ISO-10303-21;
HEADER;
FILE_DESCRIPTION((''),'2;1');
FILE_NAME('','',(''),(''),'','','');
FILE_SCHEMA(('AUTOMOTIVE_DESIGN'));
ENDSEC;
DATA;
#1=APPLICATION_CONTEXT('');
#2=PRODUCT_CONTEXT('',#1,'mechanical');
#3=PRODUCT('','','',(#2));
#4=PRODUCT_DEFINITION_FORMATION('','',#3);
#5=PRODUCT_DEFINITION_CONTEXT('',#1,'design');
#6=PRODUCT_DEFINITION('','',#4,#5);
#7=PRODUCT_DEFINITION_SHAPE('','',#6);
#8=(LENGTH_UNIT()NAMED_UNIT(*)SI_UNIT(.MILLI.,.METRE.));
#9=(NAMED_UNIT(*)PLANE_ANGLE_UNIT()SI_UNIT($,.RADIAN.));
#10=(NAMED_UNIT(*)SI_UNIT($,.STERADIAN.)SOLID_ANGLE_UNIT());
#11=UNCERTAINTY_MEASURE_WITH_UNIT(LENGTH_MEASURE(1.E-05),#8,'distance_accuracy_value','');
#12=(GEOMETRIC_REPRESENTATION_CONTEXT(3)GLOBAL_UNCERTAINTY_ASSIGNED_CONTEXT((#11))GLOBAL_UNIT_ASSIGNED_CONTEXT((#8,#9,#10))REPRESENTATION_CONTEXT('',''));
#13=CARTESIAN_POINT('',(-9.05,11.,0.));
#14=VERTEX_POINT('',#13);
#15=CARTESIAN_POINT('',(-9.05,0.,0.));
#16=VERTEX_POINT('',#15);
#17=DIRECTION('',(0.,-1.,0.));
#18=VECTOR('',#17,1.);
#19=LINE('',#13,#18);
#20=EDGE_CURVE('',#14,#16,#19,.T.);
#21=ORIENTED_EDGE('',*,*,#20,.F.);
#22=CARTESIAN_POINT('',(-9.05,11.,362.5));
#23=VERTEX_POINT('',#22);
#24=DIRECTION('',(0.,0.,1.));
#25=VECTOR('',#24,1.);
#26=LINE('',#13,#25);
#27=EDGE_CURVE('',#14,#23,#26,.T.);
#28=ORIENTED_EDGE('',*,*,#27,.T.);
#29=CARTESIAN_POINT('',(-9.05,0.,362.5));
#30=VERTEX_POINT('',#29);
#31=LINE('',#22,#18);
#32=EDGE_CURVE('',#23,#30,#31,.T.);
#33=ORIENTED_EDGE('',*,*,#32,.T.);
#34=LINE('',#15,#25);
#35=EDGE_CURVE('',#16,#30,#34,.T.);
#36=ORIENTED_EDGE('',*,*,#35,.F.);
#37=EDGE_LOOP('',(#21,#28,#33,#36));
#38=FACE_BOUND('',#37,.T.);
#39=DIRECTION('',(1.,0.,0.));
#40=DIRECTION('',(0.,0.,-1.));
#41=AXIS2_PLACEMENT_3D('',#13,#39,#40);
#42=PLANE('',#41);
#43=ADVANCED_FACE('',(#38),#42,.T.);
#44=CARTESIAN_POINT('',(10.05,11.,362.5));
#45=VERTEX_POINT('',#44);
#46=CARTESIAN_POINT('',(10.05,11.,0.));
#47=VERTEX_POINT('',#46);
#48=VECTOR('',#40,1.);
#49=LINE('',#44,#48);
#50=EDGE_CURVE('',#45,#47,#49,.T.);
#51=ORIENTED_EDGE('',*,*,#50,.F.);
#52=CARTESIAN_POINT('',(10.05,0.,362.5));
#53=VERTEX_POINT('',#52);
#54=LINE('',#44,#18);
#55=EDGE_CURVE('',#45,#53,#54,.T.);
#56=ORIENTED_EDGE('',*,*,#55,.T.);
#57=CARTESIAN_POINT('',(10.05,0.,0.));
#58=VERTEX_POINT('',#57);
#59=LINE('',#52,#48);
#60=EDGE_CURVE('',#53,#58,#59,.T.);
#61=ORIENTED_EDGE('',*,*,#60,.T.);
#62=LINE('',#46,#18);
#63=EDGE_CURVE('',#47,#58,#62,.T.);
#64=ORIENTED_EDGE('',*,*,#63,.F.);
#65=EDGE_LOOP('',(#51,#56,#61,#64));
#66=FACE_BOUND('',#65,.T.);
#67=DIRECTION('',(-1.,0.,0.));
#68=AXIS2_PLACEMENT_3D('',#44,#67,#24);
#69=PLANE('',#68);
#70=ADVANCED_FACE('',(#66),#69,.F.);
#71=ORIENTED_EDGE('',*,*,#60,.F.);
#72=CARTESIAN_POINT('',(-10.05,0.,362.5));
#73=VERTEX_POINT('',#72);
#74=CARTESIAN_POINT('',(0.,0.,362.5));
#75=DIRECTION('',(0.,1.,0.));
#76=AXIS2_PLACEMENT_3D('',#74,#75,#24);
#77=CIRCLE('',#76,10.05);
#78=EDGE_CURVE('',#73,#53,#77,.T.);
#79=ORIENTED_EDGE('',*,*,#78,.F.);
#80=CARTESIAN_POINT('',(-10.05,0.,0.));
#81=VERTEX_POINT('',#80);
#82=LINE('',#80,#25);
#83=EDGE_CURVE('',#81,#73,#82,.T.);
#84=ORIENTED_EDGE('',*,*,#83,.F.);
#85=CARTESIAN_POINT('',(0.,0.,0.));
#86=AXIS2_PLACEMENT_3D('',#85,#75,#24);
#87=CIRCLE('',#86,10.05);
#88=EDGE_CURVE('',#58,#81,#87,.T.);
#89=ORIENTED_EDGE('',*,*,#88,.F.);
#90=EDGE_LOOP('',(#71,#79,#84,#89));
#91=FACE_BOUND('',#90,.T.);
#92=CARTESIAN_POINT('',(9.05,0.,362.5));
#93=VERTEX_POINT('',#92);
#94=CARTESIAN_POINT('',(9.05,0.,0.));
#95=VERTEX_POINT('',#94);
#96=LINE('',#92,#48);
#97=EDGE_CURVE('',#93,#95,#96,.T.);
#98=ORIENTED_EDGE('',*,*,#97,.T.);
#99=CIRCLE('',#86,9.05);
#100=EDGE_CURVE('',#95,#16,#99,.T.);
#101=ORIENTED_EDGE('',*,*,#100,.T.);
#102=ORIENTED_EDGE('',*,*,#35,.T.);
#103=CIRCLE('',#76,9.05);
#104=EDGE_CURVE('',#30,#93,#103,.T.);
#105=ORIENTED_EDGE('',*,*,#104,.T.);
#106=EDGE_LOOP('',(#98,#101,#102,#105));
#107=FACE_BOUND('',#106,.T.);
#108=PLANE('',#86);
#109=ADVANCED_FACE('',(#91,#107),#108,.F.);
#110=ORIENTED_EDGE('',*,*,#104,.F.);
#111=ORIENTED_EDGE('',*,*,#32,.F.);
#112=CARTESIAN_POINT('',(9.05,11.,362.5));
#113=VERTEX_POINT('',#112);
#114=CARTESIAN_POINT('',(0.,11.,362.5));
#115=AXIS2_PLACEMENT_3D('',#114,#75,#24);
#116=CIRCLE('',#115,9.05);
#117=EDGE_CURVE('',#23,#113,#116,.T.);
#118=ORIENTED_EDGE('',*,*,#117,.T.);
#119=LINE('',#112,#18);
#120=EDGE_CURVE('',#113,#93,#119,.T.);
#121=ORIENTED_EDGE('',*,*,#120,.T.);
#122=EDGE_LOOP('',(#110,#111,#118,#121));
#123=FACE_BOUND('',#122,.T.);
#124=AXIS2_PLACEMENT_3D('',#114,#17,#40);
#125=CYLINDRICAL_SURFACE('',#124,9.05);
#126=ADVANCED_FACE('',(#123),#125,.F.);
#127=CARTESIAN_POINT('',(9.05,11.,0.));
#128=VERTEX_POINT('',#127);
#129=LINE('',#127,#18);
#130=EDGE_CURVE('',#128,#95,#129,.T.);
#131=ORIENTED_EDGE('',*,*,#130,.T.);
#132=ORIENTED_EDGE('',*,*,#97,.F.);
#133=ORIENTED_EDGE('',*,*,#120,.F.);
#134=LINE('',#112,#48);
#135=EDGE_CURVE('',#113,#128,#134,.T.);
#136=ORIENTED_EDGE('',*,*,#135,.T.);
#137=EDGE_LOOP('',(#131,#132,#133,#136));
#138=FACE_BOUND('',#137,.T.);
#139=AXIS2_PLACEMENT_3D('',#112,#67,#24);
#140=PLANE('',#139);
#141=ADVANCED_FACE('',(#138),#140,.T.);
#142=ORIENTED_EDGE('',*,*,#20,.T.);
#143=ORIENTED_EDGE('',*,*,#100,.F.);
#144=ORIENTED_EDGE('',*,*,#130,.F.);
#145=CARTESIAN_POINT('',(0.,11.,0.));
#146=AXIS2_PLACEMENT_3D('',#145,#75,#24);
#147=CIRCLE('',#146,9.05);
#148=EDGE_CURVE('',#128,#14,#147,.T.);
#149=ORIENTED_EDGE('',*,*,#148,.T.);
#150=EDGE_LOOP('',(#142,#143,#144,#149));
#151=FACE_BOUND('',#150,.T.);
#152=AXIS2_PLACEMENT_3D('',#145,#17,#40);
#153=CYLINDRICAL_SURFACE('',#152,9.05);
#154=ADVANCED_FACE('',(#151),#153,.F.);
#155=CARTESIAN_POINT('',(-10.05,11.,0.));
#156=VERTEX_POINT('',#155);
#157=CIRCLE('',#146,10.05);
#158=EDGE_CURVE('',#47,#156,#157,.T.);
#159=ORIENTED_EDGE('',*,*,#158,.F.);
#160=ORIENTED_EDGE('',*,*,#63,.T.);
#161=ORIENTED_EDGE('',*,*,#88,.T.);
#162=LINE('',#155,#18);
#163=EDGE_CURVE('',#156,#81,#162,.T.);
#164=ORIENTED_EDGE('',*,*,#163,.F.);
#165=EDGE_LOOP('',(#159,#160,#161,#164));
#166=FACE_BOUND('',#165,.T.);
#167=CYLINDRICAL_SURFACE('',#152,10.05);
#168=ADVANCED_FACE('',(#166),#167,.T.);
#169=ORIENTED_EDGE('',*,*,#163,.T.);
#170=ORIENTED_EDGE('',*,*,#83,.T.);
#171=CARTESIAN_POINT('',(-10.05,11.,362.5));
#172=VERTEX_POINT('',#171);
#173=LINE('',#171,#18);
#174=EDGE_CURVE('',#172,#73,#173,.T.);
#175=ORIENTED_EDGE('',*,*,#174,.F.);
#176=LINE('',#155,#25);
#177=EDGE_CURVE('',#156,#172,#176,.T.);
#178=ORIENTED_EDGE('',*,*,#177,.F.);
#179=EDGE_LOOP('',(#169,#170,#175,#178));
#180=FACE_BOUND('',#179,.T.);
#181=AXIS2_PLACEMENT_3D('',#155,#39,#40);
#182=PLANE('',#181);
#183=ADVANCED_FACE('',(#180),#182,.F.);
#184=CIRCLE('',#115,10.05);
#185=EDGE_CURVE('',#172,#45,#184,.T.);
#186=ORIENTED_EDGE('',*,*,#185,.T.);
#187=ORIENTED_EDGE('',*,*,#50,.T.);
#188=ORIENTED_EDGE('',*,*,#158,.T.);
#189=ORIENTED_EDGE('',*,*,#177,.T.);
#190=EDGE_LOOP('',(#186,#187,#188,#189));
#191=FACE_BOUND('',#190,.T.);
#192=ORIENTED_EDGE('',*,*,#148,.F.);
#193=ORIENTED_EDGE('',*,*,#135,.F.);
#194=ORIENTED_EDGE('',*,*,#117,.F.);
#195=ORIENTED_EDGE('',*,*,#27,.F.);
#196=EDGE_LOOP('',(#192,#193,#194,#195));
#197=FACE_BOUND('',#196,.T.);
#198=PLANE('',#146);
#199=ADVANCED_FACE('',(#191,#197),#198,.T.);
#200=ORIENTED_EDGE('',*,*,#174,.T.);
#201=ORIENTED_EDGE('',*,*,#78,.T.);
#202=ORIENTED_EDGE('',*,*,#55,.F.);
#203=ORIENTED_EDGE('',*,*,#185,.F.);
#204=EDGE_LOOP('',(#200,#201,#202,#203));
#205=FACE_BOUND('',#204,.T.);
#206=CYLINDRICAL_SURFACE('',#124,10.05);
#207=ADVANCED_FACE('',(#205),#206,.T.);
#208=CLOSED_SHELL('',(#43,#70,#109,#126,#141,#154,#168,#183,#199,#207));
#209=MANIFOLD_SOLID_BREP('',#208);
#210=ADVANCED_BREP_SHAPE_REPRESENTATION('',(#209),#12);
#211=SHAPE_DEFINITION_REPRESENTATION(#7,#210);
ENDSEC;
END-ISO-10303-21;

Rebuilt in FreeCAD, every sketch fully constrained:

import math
import FreeCAD as App
import Part
import Sketcher

V = App.Vector

doc = App.newDocument("Part")
body = doc.addObject("PartDesign::Body", "Body")

sketch1 = body.newObject("Sketcher::SketchObject", "Sketch")
sketch1.AttachmentSupport = (doc.getObject("XZ_Plane"), [""])
sketch1.MapMode = "FlatFace"
sketch1.addGeometry([
    Part.LineSegment(V(-10.05, 0, 0), V(-10.05, 362.5, 0)),
    Part.ArcOfCircle(Part.Circle(V(0, 362.5, 0), V(0, 0, 1), 10.05), math.radians(0), math.radians(180)),
    Part.LineSegment(V(10.05, 362.5, 0), V(10.05, 0, 0)),
    Part.ArcOfCircle(Part.Circle(V(0, 0, 0), V(0, 0, 1), 10.05), math.radians(180), math.radians(360)),
    Part.LineSegment(V(-9.05, 362.5, 0), V(-9.05, 0, 0)),
    Part.ArcOfCircle(Part.Circle(V(0, 0, 0), V(0, 0, 1), 9.05), math.radians(180), math.radians(360)),
    Part.LineSegment(V(9.05, 0, 0), V(9.05, 362.5, 0)),
    Part.ArcOfCircle(Part.Circle(V(0, 362.5, 0), V(0, 0, 1), 9.05), math.radians(0), math.radians(180)),
], False)
sketch1.addConstraint([
    Sketcher.Constraint("Tangent", 0, 2, 1, 2),
    Sketcher.Constraint("Tangent", 1, 1, 2, 1),
    Sketcher.Constraint("Tangent", 2, 2, 3, 2),
    Sketcher.Constraint("Tangent", 3, 1, 0, 1),
    Sketcher.Constraint("Tangent", 4, 2, 5, 1),
    Sketcher.Constraint("Tangent", 5, 2, 6, 1),
    Sketcher.Constraint("Tangent", 6, 2, 7, 1),
    Sketcher.Constraint("Tangent", 7, 2, 4, 1),
    Sketcher.Constraint("Vertical", 0),
    Sketcher.Constraint("Vertical", 2),
    Sketcher.Constraint("Vertical", 4),
    Sketcher.Constraint("Vertical", 6),
    Sketcher.Constraint("Coincident", 3, 3, -1, 1),
    Sketcher.Constraint("Coincident", 5, 3, -1, 1),
    Sketcher.Constraint("Horizontal", 7, 3, 0, 2),
    Sketcher.Constraint("Radius", 1, 10.05),
    Sketcher.Constraint("Radius", 5, 9.05),
    Sketcher.Constraint("DistanceY", 0, 1, 0, 2, 362.5),
])
pad1 = body.newObject("PartDesign::Pad", "Pad")
pad1.Profile = sketch1
pad1.Length = 11
pad1.Reversed = True

doc.recompute()
